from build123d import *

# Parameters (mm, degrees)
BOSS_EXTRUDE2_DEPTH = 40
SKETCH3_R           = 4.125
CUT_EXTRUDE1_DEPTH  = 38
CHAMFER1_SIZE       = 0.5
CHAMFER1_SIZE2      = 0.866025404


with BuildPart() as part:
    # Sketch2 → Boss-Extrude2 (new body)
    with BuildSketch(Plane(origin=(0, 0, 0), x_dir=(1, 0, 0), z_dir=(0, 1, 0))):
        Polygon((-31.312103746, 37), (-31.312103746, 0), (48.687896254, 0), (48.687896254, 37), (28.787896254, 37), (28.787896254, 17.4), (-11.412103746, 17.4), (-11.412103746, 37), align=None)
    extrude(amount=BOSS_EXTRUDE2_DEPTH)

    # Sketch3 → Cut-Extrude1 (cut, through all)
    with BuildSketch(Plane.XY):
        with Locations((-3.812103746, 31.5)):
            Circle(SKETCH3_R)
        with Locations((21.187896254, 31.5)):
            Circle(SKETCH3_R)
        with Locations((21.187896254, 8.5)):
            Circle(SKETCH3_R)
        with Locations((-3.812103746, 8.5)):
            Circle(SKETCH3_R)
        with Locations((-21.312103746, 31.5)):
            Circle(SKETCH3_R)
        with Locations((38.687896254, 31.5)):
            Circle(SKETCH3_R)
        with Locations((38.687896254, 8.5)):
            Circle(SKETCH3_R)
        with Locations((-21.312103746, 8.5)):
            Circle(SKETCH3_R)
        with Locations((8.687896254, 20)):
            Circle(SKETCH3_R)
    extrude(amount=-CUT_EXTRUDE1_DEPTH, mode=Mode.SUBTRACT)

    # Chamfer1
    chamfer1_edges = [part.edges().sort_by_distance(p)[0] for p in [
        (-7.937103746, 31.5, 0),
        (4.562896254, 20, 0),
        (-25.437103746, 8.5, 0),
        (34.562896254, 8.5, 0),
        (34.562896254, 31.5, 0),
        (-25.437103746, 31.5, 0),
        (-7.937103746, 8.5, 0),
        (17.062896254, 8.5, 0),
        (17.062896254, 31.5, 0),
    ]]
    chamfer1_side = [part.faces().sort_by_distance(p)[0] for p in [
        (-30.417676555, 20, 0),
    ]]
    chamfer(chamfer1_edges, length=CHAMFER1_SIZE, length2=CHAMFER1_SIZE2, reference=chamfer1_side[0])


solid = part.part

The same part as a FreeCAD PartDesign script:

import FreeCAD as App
import Part
import Sketcher


def edges_at(feature, points):
    """Names of the edges that pass closest to the given points."""
    edges = feature.Shape.Edges
    near = lambda p: min(range(len(edges)), key=lambda i: edges[i].distToShape(Part.Vertex(*p))[0])
    return sorted({f"Edge{near(p) + 1}" for p in points})


def add_polygon(sketch, points):
    """Adds a closed chain of lines whose ends are joined by coincident constraints."""
    first, n = sketch.GeometryCount, len(points)
    for a, b in zip(points, points[1:] + points[:1]):
        sketch.addGeometry(Part.LineSegment(App.Vector(*a, 0), App.Vector(*b, 0)), False)
    for i in range(n):
        sketch.addConstraint(Sketcher.Constraint("Coincident", first + i, 2, first + (i + 1) % n, 1))

doc = App.newDocument("Part")
body = doc.addObject("PartDesign::Body", "Body")

sketch1 = doc.addObject("Sketcher::SketchObject", "Sketch")
body.addObject(sketch1)
sketch1.AttachmentSupport = (doc.XZ_Plane, [""])
sketch1.MapMode = "FlatFace"
add_polygon(sketch1, [(-31, -37), (-31, 0), (49, 0), (49, -37), (29, -37), (29, -17), (-11, -17), (-11, -37)])
sketch1.addConstraint(Sketcher.Constraint("Vertical", 0))
sketch1.addConstraint(Sketcher.Constraint("Horizontal", 1))
sketch1.addConstraint(Sketcher.Constraint("Vertical", 2))
sketch1.addConstraint(Sketcher.Constraint("Horizontal", 3))
sketch1.addConstraint(Sketcher.Constraint("Vertical", 4))
sketch1.addConstraint(Sketcher.Constraint("Horizontal", 5))
sketch1.addConstraint(Sketcher.Constraint("Vertical", 6))
sketch1.addConstraint(Sketcher.Constraint("Horizontal", 7))
sketch1.addConstraint(Sketcher.Constraint("PointOnObject", 0, 2, -1))
sketch1.addConstraint(Sketcher.Constraint("Horizontal", 3, 2, 6, 2))
sketch1.addConstraint(Sketcher.Constraint("Equal", 3, 7))
sketch1.addConstraint(Sketcher.Constraint("DistanceX", 1, 1, 1, 2, 80.0))
sketch1.addConstraint(Sketcher.Constraint("DistanceY", 0, 1, 0, 2, 37.0))
sketch1.addConstraint(Sketcher.Constraint("DistanceX", 3, 2, 3, 1, 19.9))
sketch1.addConstraint(Sketcher.Constraint("DistanceY", 4, 1, 4, 2, 19.6))
sketch1.addConstraint(Sketcher.Constraint("DistanceX", 0, 2, -1, 1, 31.312104))
pad1 = doc.addObject("PartDesign::Pad", "Pad")
body.addObject(pad1)
pad1.Profile = sketch1
pad1.Length = 40
pad1.Reversed = True

sketch2 = doc.addObject("Sketcher::SketchObject", "Sketch001")
body.addObject(sketch2)
sketch2.AttachmentSupport = (doc.XY_Plane, [""])
sketch2.MapMode = "FlatFace"
sketch2.addGeometry(Part.Circle(App.Vector(-3.8, 31.5, 0), App.Vector(0, 0, 1), 4.1), False)
sketch2.addGeometry(Part.Circle(App.Vector(21.2, 31.5, 0), App.Vector(0, 0, 1), 4.1), False)
sketch2.addGeometry(Part.Circle(App.Vector(21.2, 8.5, 0), App.Vector(0, 0, 1), 4.1), False)
sketch2.addGeometry(Part.Circle(App.Vector(-3.8, 8.5, 0), App.Vector(0, 0, 1), 4.1), False)
sketch2.addGeometry(Part.Circle(App.Vector(-21.3, 31.5, 0), App.Vector(0, 0, 1), 4.1), False)
sketch2.addGeometry(Part.Circle(App.Vector(38.7, 31.5, 0), App.Vector(0, 0, 1), 4.1), False)
sketch2.addGeometry(Part.Circle(App.Vector(38.7, 8.5, 0), App.Vector(0, 0, 1), 4.1), False)
sketch2.addGeometry(Part.Circle(App.Vector(-21.3, 8.5, 0), App.Vector(0, 0, 1), 4.1), False)
sketch2.addGeometry(Part.Circle(App.Vector(8.7, 20, 0), App.Vector(0, 0, 1), 4.1), False)
sketch2.addConstraint(Sketcher.Constraint("Equal", 0, 1))
sketch2.addConstraint(Sketcher.Constraint("Equal", 1, 2))
sketch2.addConstraint(Sketcher.Constraint("Equal", 2, 3))
sketch2.addConstraint(Sketcher.Constraint("Equal", 3, 4))
sketch2.addConstraint(Sketcher.Constraint("Equal", 4, 5))
sketch2.addConstraint(Sketcher.Constraint("Equal", 5, 6))
sketch2.addConstraint(Sketcher.Constraint("Equal", 6, 7))
sketch2.addConstraint(Sketcher.Constraint("Equal", 7, 8))
sketch2.addConstraint(Sketcher.Constraint("Horizontal", 0, 3, 1, 3))
sketch2.addConstraint(Sketcher.Constraint("Horizontal", 2, 3, 3, 3))
sketch2.addConstraint(Sketcher.Constraint("Horizontal", 1, 3, 4, 3))
sketch2.addConstraint(Sketcher.Constraint("Horizontal", 4, 3, 5, 3))
sketch2.addConstraint(Sketcher.Constraint("Horizontal", 3, 3, 6, 3))
sketch2.addConstraint(Sketcher.Constraint("Horizontal", 6, 3, 7, 3))
sketch2.addConstraint(Sketcher.Constraint("Vertical", 1, 3, 2, 3))
sketch2.addConstraint(Sketcher.Constraint("Vertical", 0, 3, 3, 3))
sketch2.addConstraint(Sketcher.Constraint("Vertical", 5, 3, 6, 3))
sketch2.addConstraint(Sketcher.Constraint("Vertical", 4, 3, 7, 3))
sketch2.addConstraint(Sketcher.Constraint("Diameter", 0, 8.25))
sketch2.addConstraint(Sketcher.Constraint("DistanceY", -1, 1, 8, 3, 20.0))
sketch2.addConstraint(Sketcher.Constraint("DistanceX", 0, 3, 1, 3, 25.0))
sketch2.addConstraint(Sketcher.Constraint("DistanceY", 2, 3, 1, 3, 23.0))
sketch2.addConstraint(Sketcher.Constraint("DistanceX", 4, 3, 5, 3, 60.0))
sketch2.addConstraint(Sketcher.Constraint("DistanceX", 4, 3, 8, 3, 30.0))
sketch2.addConstraint(Sketcher.Constraint("DistanceY", -1, 1, 0, 3, 31.5))
sketch2.addConstraint(Sketcher.Constraint("DistanceX", 4, 3, 0, 3, 17.5))
sketch2.addConstraint(Sketcher.Constraint("DistanceX", 0, 3, -1, 1, 3.812104))
pocket1 = doc.addObject("PartDesign::Pocket", "Pocket")
body.addObject(pocket1)
pocket1.Profile = sketch2
pocket1.Type = "ThroughAll"
doc.recompute()

chamfer = doc.addObject("PartDesign::Chamfer", "Chamfer")
body.addObject(chamfer)
chamfer.Base = (pocket1, edges_at(pocket1, [
    (-7.937, 31.5, 0),
    (4.563, 20, 0),
    (-25.437, 8.5, 0),
    (34.563, 8.5, 0),
    (34.563, 31.5, 0),
    (-25.437, 31.5, 0),
    (-7.937, 8.5, 0),
    (17.063, 8.5, 0),
    (17.063, 31.5, 0),
]))
chamfer.ChamferType = "Two distances"
chamfer.Size = 0.5
chamfer.Size2 = 0.866025

doc.recompute()
